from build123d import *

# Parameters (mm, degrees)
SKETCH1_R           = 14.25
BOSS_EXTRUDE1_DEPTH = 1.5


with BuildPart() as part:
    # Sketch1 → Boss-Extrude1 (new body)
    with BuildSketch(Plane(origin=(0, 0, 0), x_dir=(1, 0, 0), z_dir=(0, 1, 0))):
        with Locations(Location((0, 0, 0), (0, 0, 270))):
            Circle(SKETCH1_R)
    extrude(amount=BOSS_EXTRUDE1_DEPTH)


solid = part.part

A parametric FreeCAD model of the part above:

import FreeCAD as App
import Part
import Sketcher

V = App.Vector

doc = App.newDocument("Part")
body = doc.addObject("PartDesign::Body", "Body")

# Sketch on XZ plane
sketch1 = doc.addObject("Sketcher::SketchObject", "Sketch")
body.addObject(sketch1)
sketch1.AttachmentSupport = (doc.XZ_Plane, [""])
sketch1.MapMode = "FlatFace"
sketch1.addGeometry(Part.Circle(V(0, 0, 0), V(0, 0, 1), 14.25), False)
sketch1.addConstraint(Sketcher.Constraint("Coincident", 0, 3, -1, 1))
sketch1.addConstraint(Sketcher.Constraint("Diameter", 0, 28.5))
pad1 = doc.addObject("PartDesign::Pad", "Pad")
body.addObject(pad1)
pad1.Profile = sketch1
pad1.Length = 1.5
pad1.Reversed = True

doc.recompute()
